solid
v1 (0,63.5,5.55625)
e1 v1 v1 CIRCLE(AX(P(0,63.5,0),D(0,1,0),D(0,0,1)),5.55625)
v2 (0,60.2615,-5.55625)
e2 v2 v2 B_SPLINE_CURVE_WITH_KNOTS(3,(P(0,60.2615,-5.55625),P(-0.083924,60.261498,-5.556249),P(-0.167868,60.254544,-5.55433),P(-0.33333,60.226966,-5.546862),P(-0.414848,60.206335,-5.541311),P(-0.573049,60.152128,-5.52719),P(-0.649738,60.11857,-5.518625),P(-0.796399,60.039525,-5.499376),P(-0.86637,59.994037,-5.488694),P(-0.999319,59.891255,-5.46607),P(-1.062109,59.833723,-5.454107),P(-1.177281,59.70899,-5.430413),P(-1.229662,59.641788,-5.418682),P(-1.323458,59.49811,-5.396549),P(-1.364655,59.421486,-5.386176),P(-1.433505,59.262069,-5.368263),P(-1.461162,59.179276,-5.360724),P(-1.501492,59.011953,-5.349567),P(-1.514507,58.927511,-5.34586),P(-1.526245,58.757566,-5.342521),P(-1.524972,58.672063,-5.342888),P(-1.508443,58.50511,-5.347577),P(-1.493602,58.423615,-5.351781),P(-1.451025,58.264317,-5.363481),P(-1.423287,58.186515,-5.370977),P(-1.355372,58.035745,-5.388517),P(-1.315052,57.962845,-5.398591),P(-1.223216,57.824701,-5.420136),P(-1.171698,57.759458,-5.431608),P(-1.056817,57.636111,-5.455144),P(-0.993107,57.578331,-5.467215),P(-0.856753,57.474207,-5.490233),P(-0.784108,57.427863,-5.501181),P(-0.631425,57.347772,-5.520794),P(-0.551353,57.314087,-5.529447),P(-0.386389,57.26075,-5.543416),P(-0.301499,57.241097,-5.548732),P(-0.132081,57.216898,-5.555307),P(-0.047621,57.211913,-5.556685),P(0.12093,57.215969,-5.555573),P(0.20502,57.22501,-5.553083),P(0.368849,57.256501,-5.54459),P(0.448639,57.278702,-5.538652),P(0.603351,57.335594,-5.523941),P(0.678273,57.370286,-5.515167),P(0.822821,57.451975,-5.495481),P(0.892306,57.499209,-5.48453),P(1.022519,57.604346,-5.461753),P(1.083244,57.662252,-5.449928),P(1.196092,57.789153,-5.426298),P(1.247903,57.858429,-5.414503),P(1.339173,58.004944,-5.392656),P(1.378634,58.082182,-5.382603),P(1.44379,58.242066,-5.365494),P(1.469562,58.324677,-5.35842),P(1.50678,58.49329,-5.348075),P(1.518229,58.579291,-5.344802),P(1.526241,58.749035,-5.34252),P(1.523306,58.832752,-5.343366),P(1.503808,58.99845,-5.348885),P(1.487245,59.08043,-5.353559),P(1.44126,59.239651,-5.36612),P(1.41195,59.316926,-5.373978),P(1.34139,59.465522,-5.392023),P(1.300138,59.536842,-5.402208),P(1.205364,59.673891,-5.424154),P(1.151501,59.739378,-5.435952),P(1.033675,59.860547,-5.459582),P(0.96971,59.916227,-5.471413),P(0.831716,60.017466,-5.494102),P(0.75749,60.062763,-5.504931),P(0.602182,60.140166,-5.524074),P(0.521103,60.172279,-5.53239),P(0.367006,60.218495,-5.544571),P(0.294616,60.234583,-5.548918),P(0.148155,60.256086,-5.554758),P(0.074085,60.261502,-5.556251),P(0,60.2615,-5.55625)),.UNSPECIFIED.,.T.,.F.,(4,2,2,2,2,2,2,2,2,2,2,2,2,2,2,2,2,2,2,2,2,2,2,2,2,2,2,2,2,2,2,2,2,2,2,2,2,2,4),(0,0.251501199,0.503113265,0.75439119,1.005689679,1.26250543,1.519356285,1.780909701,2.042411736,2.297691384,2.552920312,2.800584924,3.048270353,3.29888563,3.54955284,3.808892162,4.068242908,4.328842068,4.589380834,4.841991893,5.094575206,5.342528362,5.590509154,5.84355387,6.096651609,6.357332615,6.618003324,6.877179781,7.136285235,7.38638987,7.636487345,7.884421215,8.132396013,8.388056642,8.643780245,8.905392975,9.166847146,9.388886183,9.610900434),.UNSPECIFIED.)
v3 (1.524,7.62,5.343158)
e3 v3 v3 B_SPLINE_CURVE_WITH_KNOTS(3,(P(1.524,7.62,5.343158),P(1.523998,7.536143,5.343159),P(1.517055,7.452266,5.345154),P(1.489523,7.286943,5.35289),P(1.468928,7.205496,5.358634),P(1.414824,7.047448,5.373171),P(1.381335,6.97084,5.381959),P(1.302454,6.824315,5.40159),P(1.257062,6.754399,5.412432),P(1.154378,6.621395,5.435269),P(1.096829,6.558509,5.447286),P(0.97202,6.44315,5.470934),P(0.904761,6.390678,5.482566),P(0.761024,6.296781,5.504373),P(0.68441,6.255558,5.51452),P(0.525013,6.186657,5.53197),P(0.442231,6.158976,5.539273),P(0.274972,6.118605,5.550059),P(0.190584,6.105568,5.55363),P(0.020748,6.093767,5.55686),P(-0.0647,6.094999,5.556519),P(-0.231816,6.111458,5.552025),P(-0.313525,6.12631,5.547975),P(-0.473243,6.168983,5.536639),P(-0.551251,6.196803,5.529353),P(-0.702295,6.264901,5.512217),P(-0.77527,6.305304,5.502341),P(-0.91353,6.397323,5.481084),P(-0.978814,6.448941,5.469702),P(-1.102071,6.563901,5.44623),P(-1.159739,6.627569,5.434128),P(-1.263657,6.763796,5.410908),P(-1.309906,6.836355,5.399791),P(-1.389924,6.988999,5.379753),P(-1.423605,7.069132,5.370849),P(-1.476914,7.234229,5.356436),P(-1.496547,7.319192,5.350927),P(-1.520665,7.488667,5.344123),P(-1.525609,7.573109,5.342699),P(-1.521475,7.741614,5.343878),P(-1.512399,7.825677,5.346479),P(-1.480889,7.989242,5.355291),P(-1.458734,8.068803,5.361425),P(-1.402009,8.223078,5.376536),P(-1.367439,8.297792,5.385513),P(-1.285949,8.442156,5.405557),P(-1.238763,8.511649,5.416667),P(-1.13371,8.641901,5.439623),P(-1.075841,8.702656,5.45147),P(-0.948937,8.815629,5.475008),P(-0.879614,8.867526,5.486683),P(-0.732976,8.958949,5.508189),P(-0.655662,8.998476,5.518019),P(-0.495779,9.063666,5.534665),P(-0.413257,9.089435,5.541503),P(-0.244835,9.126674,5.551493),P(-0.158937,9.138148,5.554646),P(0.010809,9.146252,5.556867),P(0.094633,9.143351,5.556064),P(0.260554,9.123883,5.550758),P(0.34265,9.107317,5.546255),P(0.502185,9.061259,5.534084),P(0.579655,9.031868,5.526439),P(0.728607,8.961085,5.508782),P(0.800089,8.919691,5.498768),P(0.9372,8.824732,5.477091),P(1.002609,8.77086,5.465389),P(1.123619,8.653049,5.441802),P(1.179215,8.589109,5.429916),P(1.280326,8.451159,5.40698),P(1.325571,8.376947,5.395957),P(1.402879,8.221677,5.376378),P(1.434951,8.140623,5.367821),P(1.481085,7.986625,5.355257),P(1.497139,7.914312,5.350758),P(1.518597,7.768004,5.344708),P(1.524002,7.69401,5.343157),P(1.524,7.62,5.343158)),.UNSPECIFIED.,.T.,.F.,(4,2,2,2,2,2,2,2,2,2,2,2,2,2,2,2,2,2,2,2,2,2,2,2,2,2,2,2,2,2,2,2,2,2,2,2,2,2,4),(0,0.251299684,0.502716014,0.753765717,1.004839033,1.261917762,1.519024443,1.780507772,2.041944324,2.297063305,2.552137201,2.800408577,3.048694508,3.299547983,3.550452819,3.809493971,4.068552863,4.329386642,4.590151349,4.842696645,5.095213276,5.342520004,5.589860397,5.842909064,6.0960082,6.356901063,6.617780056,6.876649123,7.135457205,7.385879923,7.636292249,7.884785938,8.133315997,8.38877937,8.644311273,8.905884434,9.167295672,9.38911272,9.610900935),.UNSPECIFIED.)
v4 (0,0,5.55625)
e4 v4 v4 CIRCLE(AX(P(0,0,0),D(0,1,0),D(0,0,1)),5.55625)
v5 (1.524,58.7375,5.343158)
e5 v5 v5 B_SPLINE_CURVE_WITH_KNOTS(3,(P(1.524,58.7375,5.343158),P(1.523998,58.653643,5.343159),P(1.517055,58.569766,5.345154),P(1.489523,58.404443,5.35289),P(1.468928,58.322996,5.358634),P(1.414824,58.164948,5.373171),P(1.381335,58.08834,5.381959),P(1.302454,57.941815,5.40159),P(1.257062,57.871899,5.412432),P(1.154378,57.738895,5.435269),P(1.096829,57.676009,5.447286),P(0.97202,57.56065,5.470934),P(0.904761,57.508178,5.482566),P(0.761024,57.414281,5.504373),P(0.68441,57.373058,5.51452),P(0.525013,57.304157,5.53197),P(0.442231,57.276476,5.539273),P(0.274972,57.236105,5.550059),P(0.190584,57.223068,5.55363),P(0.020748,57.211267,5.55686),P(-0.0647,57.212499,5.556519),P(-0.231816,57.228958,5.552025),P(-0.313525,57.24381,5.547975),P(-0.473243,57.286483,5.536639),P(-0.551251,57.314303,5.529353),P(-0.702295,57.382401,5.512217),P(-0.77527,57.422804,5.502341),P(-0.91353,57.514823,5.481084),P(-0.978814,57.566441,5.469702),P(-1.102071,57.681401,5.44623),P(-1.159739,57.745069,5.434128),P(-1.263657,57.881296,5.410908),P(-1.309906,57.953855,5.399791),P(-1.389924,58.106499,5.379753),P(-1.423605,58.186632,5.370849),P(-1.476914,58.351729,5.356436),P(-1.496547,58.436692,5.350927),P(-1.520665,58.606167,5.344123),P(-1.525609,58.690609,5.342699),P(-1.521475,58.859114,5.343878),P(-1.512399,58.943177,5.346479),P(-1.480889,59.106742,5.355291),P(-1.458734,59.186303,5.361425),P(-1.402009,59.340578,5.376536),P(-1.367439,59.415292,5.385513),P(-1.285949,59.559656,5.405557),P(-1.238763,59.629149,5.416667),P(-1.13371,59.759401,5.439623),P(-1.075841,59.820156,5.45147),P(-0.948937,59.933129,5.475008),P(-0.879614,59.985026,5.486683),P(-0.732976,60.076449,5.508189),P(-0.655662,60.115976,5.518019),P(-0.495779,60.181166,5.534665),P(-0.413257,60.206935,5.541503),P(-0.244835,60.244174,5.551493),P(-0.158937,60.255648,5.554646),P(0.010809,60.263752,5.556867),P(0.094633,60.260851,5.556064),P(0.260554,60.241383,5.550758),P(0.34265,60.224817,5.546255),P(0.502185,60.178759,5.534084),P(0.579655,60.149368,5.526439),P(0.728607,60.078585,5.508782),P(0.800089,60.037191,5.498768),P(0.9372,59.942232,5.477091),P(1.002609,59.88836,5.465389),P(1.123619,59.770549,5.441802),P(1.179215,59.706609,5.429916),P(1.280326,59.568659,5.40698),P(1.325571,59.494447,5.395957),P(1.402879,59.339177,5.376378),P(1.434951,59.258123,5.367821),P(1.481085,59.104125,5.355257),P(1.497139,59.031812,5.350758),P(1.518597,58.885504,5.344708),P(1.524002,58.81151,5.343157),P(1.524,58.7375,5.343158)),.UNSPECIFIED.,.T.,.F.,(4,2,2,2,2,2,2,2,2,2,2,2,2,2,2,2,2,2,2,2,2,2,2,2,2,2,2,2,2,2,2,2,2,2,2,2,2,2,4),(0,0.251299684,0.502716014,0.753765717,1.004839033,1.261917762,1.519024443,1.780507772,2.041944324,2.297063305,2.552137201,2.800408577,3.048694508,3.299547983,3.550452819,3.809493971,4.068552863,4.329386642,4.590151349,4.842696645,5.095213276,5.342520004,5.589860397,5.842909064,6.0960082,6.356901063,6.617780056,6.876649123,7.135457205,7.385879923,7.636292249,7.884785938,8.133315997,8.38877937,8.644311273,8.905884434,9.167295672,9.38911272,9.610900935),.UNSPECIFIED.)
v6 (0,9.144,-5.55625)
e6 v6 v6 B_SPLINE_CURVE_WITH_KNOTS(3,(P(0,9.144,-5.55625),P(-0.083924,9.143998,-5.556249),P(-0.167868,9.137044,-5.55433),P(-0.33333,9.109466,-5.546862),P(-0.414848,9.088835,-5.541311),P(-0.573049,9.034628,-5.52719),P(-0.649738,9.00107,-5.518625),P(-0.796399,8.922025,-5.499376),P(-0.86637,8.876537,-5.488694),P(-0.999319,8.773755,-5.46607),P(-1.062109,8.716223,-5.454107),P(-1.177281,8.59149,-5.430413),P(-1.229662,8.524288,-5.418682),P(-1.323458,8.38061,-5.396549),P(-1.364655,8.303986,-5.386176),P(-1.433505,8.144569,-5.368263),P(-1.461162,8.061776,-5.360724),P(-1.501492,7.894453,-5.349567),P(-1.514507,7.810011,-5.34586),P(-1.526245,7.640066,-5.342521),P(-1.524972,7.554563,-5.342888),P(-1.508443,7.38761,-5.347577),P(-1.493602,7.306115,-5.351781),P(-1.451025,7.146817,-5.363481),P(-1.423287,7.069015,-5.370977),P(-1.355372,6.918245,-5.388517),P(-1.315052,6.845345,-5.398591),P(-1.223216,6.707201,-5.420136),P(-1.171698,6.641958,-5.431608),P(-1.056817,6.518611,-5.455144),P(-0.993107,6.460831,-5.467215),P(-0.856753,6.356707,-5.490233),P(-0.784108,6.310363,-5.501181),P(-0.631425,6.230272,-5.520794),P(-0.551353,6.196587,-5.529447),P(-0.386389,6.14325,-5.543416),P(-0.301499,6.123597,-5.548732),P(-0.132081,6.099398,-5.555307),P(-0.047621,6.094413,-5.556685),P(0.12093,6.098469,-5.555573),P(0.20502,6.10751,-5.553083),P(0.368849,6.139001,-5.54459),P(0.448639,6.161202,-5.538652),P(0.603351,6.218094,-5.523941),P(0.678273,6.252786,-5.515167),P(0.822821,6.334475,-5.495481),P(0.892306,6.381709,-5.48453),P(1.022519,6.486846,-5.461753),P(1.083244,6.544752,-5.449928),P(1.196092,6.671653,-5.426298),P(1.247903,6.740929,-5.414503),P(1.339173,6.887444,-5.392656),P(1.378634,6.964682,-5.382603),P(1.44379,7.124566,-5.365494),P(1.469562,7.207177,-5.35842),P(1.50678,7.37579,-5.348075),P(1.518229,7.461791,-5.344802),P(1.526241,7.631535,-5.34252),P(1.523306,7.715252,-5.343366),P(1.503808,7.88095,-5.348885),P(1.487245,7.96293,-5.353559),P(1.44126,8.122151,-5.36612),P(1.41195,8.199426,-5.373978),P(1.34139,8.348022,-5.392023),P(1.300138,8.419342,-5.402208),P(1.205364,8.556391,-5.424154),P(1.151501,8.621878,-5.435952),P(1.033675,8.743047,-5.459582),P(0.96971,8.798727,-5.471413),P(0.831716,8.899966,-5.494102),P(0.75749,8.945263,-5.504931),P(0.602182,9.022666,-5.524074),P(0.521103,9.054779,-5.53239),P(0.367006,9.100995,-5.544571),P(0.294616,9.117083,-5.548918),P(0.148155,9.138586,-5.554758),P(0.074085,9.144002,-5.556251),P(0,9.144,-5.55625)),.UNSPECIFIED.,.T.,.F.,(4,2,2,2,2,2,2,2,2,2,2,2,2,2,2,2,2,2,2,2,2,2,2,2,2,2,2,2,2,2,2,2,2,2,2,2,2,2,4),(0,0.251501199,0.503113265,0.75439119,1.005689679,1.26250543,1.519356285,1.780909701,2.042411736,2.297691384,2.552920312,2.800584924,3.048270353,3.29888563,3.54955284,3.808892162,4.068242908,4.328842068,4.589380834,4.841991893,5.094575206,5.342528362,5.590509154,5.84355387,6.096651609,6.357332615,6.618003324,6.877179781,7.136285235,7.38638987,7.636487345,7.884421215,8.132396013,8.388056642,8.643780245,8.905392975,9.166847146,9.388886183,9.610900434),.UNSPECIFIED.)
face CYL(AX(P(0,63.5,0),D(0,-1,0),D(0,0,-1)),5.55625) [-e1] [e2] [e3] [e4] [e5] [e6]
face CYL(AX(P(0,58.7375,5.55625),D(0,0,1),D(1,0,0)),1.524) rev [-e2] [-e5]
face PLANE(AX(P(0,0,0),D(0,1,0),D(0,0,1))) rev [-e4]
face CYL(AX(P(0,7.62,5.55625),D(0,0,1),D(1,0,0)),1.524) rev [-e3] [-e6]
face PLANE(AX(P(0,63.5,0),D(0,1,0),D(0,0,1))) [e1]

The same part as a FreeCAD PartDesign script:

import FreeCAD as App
import Part
import Sketcher
from FreeCAD import Vector
Q = App.Units.Quantity

doc = App.newDocument("Part")
body = doc.addObject("PartDesign::Body", "Body")

sketch1 = doc.addObject("Sketcher::SketchObject", "Sketch")
body.addObject(sketch1)
sketch1.AttachmentSupport = (doc.XZ_Plane, [""])
sketch1.MapMode = "FlatFace"
sketch1.addGeometry(Part.Circle(Vector(0, 0, 0), Vector(0, 0, 1), 6), False)
sketch1.addConstraint([
    Sketcher.Constraint("Coincident", 0, 3, -1, 1),
    Sketcher.Constraint("Diameter", 0, Q("0.4375 in")),
])
pad1 = doc.addObject("PartDesign::Pad", "Pad")
body.addObject(pad1)
pad1.Profile = sketch1
pad1.Length = Q("2.5 in")
pad1.Reversed = True

sketch2 = doc.addObject("Sketcher::SketchObject", "Sketch001")
body.addObject(sketch2)
sketch2.AttachmentSupport = (doc.XY_Plane, [""])
sketch2.MapMode = "FlatFace"
sketch2.AttachmentOffset = App.Placement(Vector(0, 0, 0.21875 * 25.4), App.Rotation())
sketch2.addGeometry([
    Part.Circle(Vector(0, 58.7, 0), Vector(0, 0, 1), 1.5),
    Part.Circle(Vector(0, 7.6, 0), Vector(0, 0, 1), 1.5),
], False)
sketch2.addConstraint([
    Sketcher.Constraint("Equal", 0, 1),
    Sketcher.Constraint("PointOnObject", 0, 3, -2),
    Sketcher.Constraint("PointOnObject", 1, 3, -2),
    Sketcher.Constraint("Diameter", 0, Q("0.12 in")),
    Sketcher.Constraint("DistanceY", -1, 1, 1, 3, Q("0.3 in")),
    Sketcher.Constraint("DistanceY", -1, 1, 0, 3, Q("2.3125 in")),
])
doc.recompute()
hole = doc.addObject("PartDesign::Hole", "Hole")
body.addObject(hole)
hole.Profile = sketch2
hole.ThreadType = "None"
hole.Diameter = Q("0.12 in")
hole.DepthType = "ThroughAll"

doc.recompute()
